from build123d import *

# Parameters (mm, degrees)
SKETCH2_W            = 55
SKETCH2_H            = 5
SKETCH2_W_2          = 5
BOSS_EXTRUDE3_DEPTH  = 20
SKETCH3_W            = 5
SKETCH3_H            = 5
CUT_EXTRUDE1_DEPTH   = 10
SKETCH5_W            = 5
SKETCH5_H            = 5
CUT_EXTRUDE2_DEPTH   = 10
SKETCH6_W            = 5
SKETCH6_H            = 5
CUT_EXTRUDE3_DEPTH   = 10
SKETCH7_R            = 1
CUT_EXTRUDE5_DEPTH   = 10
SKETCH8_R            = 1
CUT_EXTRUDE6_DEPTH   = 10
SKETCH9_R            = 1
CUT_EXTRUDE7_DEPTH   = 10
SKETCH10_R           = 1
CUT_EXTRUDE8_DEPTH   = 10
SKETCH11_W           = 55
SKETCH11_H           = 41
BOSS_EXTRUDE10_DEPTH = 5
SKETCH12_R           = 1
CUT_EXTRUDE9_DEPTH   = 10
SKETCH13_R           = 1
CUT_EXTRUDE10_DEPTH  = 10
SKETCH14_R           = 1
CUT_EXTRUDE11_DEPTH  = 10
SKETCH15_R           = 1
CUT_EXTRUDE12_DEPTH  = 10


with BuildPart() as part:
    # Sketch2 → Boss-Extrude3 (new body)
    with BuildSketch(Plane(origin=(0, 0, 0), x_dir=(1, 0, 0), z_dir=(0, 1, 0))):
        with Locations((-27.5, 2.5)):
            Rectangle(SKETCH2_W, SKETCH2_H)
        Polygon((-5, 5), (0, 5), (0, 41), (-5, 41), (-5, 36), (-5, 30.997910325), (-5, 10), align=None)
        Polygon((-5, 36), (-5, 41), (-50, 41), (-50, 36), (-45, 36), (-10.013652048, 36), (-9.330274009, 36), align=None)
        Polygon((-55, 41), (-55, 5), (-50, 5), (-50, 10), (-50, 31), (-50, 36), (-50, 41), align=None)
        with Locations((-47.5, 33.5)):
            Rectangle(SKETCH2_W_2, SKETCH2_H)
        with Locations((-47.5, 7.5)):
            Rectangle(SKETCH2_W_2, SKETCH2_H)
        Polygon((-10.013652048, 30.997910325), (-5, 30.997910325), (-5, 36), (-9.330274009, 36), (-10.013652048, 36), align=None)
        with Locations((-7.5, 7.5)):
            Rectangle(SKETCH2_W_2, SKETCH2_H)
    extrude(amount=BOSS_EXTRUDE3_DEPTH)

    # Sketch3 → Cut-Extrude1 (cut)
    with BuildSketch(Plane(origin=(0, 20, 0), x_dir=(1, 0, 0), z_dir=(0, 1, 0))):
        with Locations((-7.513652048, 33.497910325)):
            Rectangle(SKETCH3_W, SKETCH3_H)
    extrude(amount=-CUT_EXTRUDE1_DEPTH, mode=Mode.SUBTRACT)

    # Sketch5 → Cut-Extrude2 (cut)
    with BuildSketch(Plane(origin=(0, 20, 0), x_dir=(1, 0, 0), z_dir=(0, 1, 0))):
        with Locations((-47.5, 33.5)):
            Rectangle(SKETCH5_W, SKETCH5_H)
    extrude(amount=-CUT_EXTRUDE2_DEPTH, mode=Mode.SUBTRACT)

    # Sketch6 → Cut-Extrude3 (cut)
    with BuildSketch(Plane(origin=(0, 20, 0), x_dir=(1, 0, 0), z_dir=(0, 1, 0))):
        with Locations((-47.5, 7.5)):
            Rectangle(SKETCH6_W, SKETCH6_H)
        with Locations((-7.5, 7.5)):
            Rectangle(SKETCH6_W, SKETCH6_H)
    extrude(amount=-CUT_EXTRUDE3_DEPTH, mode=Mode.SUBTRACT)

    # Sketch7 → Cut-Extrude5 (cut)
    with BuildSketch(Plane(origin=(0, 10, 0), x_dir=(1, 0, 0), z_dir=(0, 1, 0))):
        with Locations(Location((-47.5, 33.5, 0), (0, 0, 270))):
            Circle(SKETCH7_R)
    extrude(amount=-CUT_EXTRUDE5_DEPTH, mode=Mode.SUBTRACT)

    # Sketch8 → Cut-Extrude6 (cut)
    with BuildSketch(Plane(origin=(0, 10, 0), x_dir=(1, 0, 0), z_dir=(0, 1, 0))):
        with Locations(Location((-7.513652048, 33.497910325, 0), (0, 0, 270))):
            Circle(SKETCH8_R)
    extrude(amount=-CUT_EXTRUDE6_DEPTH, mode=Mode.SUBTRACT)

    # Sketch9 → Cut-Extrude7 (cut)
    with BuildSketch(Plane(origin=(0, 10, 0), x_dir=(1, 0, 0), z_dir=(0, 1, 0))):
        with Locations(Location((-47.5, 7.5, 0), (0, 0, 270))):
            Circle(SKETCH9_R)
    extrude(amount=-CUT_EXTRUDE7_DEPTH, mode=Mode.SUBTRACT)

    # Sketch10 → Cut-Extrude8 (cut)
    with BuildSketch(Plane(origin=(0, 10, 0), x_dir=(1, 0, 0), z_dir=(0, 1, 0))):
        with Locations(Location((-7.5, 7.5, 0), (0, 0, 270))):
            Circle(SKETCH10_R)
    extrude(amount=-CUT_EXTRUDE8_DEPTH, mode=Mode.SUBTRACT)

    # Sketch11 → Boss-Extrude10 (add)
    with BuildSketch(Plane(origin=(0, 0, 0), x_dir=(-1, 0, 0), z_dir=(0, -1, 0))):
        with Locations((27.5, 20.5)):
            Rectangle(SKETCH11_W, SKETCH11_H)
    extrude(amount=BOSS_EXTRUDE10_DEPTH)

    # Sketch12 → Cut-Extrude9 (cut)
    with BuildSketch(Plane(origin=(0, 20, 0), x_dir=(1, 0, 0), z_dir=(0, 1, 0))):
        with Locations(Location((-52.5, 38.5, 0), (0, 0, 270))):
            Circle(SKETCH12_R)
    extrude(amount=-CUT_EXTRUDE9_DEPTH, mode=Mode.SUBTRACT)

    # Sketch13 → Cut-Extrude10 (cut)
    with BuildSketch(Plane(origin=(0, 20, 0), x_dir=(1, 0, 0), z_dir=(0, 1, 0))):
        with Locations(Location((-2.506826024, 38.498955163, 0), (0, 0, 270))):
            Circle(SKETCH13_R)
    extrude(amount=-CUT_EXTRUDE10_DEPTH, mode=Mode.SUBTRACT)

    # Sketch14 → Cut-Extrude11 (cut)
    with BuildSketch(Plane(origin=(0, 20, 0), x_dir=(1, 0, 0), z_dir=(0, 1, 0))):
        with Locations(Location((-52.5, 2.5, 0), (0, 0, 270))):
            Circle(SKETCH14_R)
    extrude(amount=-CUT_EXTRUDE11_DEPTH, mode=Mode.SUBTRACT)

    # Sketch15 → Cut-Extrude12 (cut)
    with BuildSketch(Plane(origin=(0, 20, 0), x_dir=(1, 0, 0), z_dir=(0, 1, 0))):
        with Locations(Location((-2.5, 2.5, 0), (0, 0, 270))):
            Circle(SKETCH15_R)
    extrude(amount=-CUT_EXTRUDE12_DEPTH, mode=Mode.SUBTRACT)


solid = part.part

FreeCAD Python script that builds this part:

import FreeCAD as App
import Part
import Sketcher

V = App.Vector

doc = App.newDocument("Part")
params = doc.addObject("Spreadsheet::Sheet", "Params")
for row, (alias, value) in enumerate([
    ("sketch1_width", "55 mm"),
    ("sketch1_width2", "5 mm"),
    ("sketch1_width3", "35 mm"),
    ("sketch1_height", "41 mm"),
    ("sketch1_height2", "21 mm"),
    ("pad1_length", "20 mm"),
    ("sketch2_width", "5 mm"),
    ("pocket1_length", "10 mm"),
    ("sketch3_width", "5 mm"),
    ("pocket2_length", "10 mm"),
    ("sketch4_width", "5 mm"),
    ("pocket3_length", "10 mm"),
    ("sketch5_diameter", "2 mm"),
    ("pocket4_length", "10 mm"),
    ("sketch6_diameter", "2 mm"),
    ("pocket5_length", "10 mm"),
    ("sketch7_diameter", "2 mm"),
    ("pocket6_length", "10 mm"),
    ("sketch8_diameter", "2 mm"),
    ("pocket7_length", "10 mm"),
    ("sketch9_width", "55 mm"),
    ("sketch9_height", "41 mm"),
    ("pad2_length", "5 mm"),
    ("sketch10_diameter", "2 mm"),
    ("pocket8_length", "10 mm"),
    ("sketch11_diameter", "2 mm"),
    ("pocket9_length", "10 mm"),
    ("sketch12_diameter", "2 mm"),
    ("pocket10_length", "10 mm"),
    ("sketch13_diameter", "2 mm"),
    ("pocket11_length", "10 mm"),
], start=1):
    params.set(f"A{row}", alias)
    params.set(f"B{row}", "=" + value)
    params.setAlias(f"B{row}", alias)

body = doc.addObject("PartDesign::Body", "Body")

sketch1 = doc.addObject("Sketcher::SketchObject", "Sketch")
body.addObject(sketch1)
sketch1.AttachmentSupport = (doc.XZ_Plane, [""])
sketch1.MapMode = "FlatFace"
sketch1.addGeometry([
    Part.LineSegment(V(-55, 0, 0), V(0, 0, 0)),
    Part.LineSegment(V(0, 0, 0), V(0, -41, 0)),
    Part.LineSegment(V(0, -41, 0), V(-55, -41, 0)),
    Part.LineSegment(V(-55, -41, 0), V(-55, 0, 0)),
    Part.LineSegment(V(-45, -36, 0), V(-10, -36, 0)),
    Part.LineSegment(V(-10, -36, 0), V(-10, -31, 0)),
    Part.LineSegment(V(-10, -31, 0), V(-5, -31, 0)),
    Part.LineSegment(V(-5, -31, 0), V(-5, -10, 0)),
    Part.LineSegment(V(-5, -10, 0), V(-10, -10, 0)),
    Part.LineSegment(V(-10, -10, 0), V(-10, -5, 0)),
    Part.LineSegment(V(-10, -5, 0), V(-45, -5, 0)),
    Part.LineSegment(V(-45, -5, 0), V(-45, -10, 0)),
    Part.LineSegment(V(-45, -10, 0), V(-50, -10, 0)),
    Part.LineSegment(V(-50, -10, 0), V(-50, -31, 0)),
    Part.LineSegment(V(-50, -31, 0), V(-45, -31, 0)),
    Part.LineSegment(V(-45, -31, 0), V(-45, -36, 0)),
], False)
sketch1.addConstraint([
    Sketcher.Constraint("Coincident", 0, 2, 1, 1),
    Sketcher.Constraint("Coincident", 1, 2, 2, 1),
    Sketcher.Constraint("Coincident", 2, 2, 3, 1),
    Sketcher.Constraint("Coincident", 3, 2, 0, 1),
    Sketcher.Constraint("Coincident", 4, 2, 5, 1),
    Sketcher.Constraint("Coincident", 5, 2, 6, 1),
    Sketcher.Constraint("Coincident", 6, 2, 7, 1),
    Sketcher.Constraint("Coincident", 7, 2, 8, 1),
    Sketcher.Constraint("Coincident", 8, 2, 9, 1),
    Sketcher.Constraint("Coincident", 9, 2, 10, 1),
    Sketcher.Constraint("Coincident", 10, 2, 11, 1),
    Sketcher.Constraint("Coincident", 11, 2, 12, 1),
    Sketcher.Constraint("Coincident", 12, 2, 13, 1),
    Sketcher.Constraint("Coincident", 13, 2, 14, 1),
    Sketcher.Constraint("Coincident", 14, 2, 15, 1),
    Sketcher.Constraint("Coincident", 15, 2, 4, 1),
    Sketcher.Constraint("Horizontal", 0),
    Sketcher.Constraint("Vertical", 1),
    Sketcher.Constraint("Horizontal", 2),
    Sketcher.Constraint("Vertical", 3),
    Sketcher.Constraint("Horizontal", 4),
    Sketcher.Constraint("Vertical", 5),
    Sketcher.Constraint("Horizontal", 6),
    Sketcher.Constraint("Vertical", 7),
    Sketcher.Constraint("Horizontal", 8),
    Sketcher.Constraint("Vertical", 9),
    Sketcher.Constraint("Horizontal", 10),
    Sketcher.Constraint("Vertical", 11),
    Sketcher.Constraint("Horizontal", 12),
    Sketcher.Constraint("Vertical", 13),
    Sketcher.Constraint("Horizontal", 14),
    Sketcher.Constraint("Vertical", 15),
    Sketcher.Constraint("Coincident", 0, 2, -1, 1),
    Sketcher.Constraint("Horizontal", 8, 2, 11, 2),
    Sketcher.Constraint("Vertical", 11, 2, 14, 2),
    Sketcher.Constraint("Equal", 8, 12),
    Sketcher.Constraint("Equal", 14, 9),
    Sketcher.Constraint("Equal", 11, 15),
    Sketcher.Constraint("DistanceX", 0, 1, 0, 2, 55.0),
    Sketcher.Constraint("DistanceX", 8, 2, 8, 1, 5.0),
    Sketcher.Constraint("DistanceX", 10, 2, 10, 1, 35.0),
    Sketcher.Constraint("DistanceY", 1, 2, 1, 1, 41.0),
    Sketcher.Constraint("DistanceY", 13, 2, 13, 1, 21.0),
    Sketcher.Constraint("DistanceY", 4, 2, -1, 1, 36.0),
    Sketcher.Constraint("DistanceX", 6, 2, -1, 1, 5.0),
    Sketcher.Constraint("DistanceY", 5, 1, 5, 2, 5.00209),
    Sketcher.Constraint("DistanceX", 4, 1, 4, 2, 34.986348),
])
sketch1.setExpression("Constraints[38]", "Params.sketch1_width")
sketch1.setExpression("Constraints[39]", "Params.sketch1_width2")
sketch1.setExpression("Constraints[40]", "Params.sketch1_width3")
sketch1.setExpression("Constraints[41]", "Params.sketch1_height")
sketch1.setExpression("Constraints[42]", "Params.sketch1_height2")
pad1 = doc.addObject("PartDesign::Pad", "Pad")
body.addObject(pad1)
pad1.Profile = sketch1
pad1.setExpression("Length", "Params.pad1_length")
pad1.Reversed = True

sketch2 = doc.addObject("Sketcher::SketchObject", "Sketch001")
body.addObject(sketch2)
sketch2.AttachmentSupport = (doc.XZ_Plane, [""])
sketch2.MapMode = "FlatFace"
sketch2.AttachmentOffset = App.Placement(V(0, 0, -20), App.Rotation())
sketch2.addGeometry([
    Part.LineSegment(V(-10, -36, 0), V(-10, -31, 0)),
    Part.LineSegment(V(-10, -31, 0), V(-5, -31, 0)),
    Part.LineSegment(V(-5, -31, 0), V(-5, -36, 0)),
    Part.LineSegment(V(-5, -36, 0), V(-10, -36, 0)),
], False)
sketch2.addConstraint([
    Sketcher.Constraint("Coincident", 0, 2, 1, 1),
    Sketcher.Constraint("Coincident", 1, 2, 2, 1),
    Sketcher.Constraint("Coincident", 2, 2, 3, 1),
    Sketcher.Constraint("Coincident", 3, 2, 0, 1),
    Sketcher.Constraint("Vertical", 0),
    Sketcher.Constraint("Horizontal", 1),
    Sketcher.Constraint("Vertical", 2),
    Sketcher.Constraint("Horizontal", 3),
    Sketcher.Constraint("Equal", 3, 0),
    Sketcher.Constraint("DistanceX", 1, 1, 1, 2, 5.0),
    Sketcher.Constraint("DistanceY", 0, 2, -1, 1, 30.99791),
    Sketcher.Constraint("DistanceX", 0, 2, -1, 1, 10.013652),
])
sketch2.setExpression("Constraints[9]", "Params.sketch2_width")
pocket1 = doc.addObject("PartDesign::Pocket", "Pocket")
body.addObject(pocket1)
pocket1.Profile = sketch2
pocket1.setExpression("Length", "Params.pocket1_length")
pocket1.Reversed = True

sketch3 = doc.addObject("Sketcher::SketchObject", "Sketch002")
body.addObject(sketch3)
sketch3.AttachmentSupport = (doc.XZ_Plane, [""])
sketch3.MapMode = "FlatFace"
sketch3.AttachmentOffset = App.Placement(V(0, 0, -20), App.Rotation())
sketch3.addGeometry([
    Part.LineSegment(V(-50, -36, 0), V(-50, -31, 0)),
    Part.LineSegment(V(-50, -31, 0), V(-45, -31, 0)),
    Part.LineSegment(V(-45, -31, 0), V(-45, -36, 0)),
    Part.LineSegment(V(-45, -36, 0), V(-50, -36, 0)),
], False)
sketch3.addConstraint([
    Sketcher.Constraint("Coincident", 0, 2, 1, 1),
    Sketcher.Constraint("Coincident", 1, 2, 2, 1),
    Sketcher.Constraint("Coincident", 2, 2, 3, 1),
    Sketcher.Constraint("Coincident", 3, 2, 0, 1),
    Sketcher.Constraint("Vertical", 0),
    Sketcher.Constraint("Horizontal", 1),
    Sketcher.Constraint("Vertical", 2),
    Sketcher.Constraint("Horizontal", 3),
    Sketcher.Constraint("Equal", 3, 0),
    Sketcher.Constraint("DistanceX", 1, 1, 1, 2, 5.0),
    Sketcher.Constraint("DistanceX", 0, 2, -1, 1, 50.0),
    Sketcher.Constraint("DistanceY", 0, 2, -1, 1, 31.0),
])
sketch3.setExpression("Constraints[9]", "Params.sketch3_width")
pocket2 = doc.addObject("PartDesign::Pocket", "Pocket001")
body.addObject(pocket2)
pocket2.Profile = sketch3
pocket2.setExpression("Length", "Params.pocket2_length")
pocket2.Reversed = True

sketch4 = doc.addObject("Sketcher::SketchObject", "Sketch003")
body.addObject(sketch4)
sketch4.AttachmentSupport = (doc.XZ_Plane, [""])
sketch4.MapMode = "FlatFace"
sketch4.AttachmentOffset = App.Placement(V(0, 0, -20), App.Rotation())
sketch4.addGeometry([
    Part.LineSegment(V(-50, -10, 0), V(-50, -5, 0)),
    Part.LineSegment(V(-50, -5, 0), V(-45, -5, 0)),
    Part.LineSegment(V(-45, -5, 0), V(-45, -10, 0)),
    Part.LineSegment(V(-45, -10, 0), V(-50, -10, 0)),
    Part.LineSegment(V(-10, -10, 0), V(-10, -5, 0)),
    Part.LineSegment(V(-10, -5, 0), V(-5, -5, 0)),
    Part.LineSegment(V(-5, -5, 0), V(-5, -10, 0)),
    Part.LineSegment(V(-5, -10, 0), V(-10, -10, 0)),
], False)
sketch4.addConstraint([
    Sketcher.Constraint("Coincident", 0, 2, 1, 1),
    Sketcher.Constraint("Coincident", 1, 2, 2, 1),
    Sketcher.Constraint("Coincident", 2, 2, 3, 1),
    Sketcher.Constraint("Coincident", 3, 2, 0, 1),
    Sketcher.Constraint("Coincident", 4, 2, 5, 1),
    Sketcher.Constraint("Coincident", 5, 2, 6, 1),
    Sketcher.Constraint("Coincident", 6, 2, 7, 1),
    Sketcher.Constraint("Coincident", 7, 2, 4, 1),
    Sketcher.Constraint("Vertical", 0),
    Sketcher.Constraint("Horizontal", 1),
    Sketcher.Constraint("Vertical", 2),
    Sketcher.Constraint("Horizontal", 3),
    Sketcher.Constraint("Vertical", 4),
    Sketcher.Constraint("Horizontal", 5),
    Sketcher.Constraint("Vertical", 6),
    Sketcher.Constraint("Horizontal", 7),
    Sketcher.Constraint("Horizontal", 1, 2, 4, 2),
    Sketcher.Constraint("Horizontal", 3, 2, 6, 2),
    Sketcher.Constraint("Equal", 3, 5),
    Sketcher.Constraint("Equal", 7, 0),
    Sketcher.Constraint("DistanceX", 1, 1, 1, 2, 5.0),
    Sketcher.Constraint("DistanceX", 0, 2, -1, 1, 50.0),
    Sketcher.Constraint("DistanceY", 0, 2, -1, 1, 5.0),
    Sketcher.Constraint("DistanceX", 4, 2, -1, 1, 10.0),
])
sketch4.setExpression("Constraints[20]", "Params.sketch4_width")
pocket3 = doc.addObject("PartDesign::Pocket", "Pocket002")
body.addObject(pocket3)
pocket3.Profile = sketch4
pocket3.setExpression("Length", "Params.pocket3_length")
pocket3.Reversed = True

sketch5 = doc.addObject("Sketcher::SketchObject", "Sketch004")
body.addObject(sketch5)
sketch5.AttachmentSupport = (doc.XZ_Plane, [""])
sketch5.MapMode = "FlatFace"
sketch5.AttachmentOffset = App.Placement(V(0, 0, -10), App.Rotation())
sketch5.addGeometry(Part.Circle(V(-47.5, -33.5, 0), V(0, 0, 1), 1), False)
sketch5.addConstraint([
    Sketcher.Constraint("Diameter", 0, 2.0),
    Sketcher.Constraint("DistanceX", 0, 3, -1, 1, 47.5),
    Sketcher.Constraint("DistanceY", 0, 3, -1, 1, 33.5),
])
sketch5.setExpression("Constraints[0]", "Params.sketch5_diameter")
pocket4 = doc.addObject("PartDesign::Pocket", "Pocket003")
body.addObject(pocket4)
pocket4.Profile = sketch5
pocket4.setExpression("Length", "Params.pocket4_length")
pocket4.Reversed = True

sketch6 = doc.addObject("Sketcher::SketchObject", "Sketch005")
body.addObject(sketch6)
sketch6.AttachmentSupport = (doc.XZ_Plane, [""])
sketch6.MapMode = "FlatFace"
sketch6.AttachmentOffset = App.Placement(V(0, 0, -10), App.Rotation())
sketch6.addGeometry(Part.Circle(V(-7.5, -33.5, 0), V(0, 0, 1), 1), False)
sketch6.addConstraint([
    Sketcher.Constraint("Diameter", 0, 2.0),
    Sketcher.Constraint("DistanceY", 0, 3, -1, 1, 33.49791),
    Sketcher.Constraint("DistanceX", 0, 3, -1, 1, 7.513652),
])
sketch6.setExpression("Constraints[0]", "Params.sketch6_diameter")
pocket5 = doc.addObject("PartDesign::Pocket", "Pocket004")
body.addObject(pocket5)
pocket5.Profile = sketch6
pocket5.setExpression("Length", "Params.pocket5_length")
pocket5.Reversed = True

sketch7 = doc.addObject("Sketcher::SketchObject", "Sketch006")
body.addObject(sketch7)
sketch7.AttachmentSupport = (doc.XZ_Plane, [""])
sketch7.MapMode = "FlatFace"
sketch7.AttachmentOffset = App.Placement(V(0, 0, -10), App.Rotation())
sketch7.addGeometry(Part.Circle(V(-47.5, -7.5, 0), V(0, 0, 1), 1), False)
sketch7.addConstraint([
    Sketcher.Constraint("Diameter", 0, 2.0),
    Sketcher.Constraint("DistanceX", 0, 3, -1, 1, 47.5),
    Sketcher.Constraint("DistanceY", 0, 3, -1, 1, 7.5),
])
sketch7.setExpression("Constraints[0]", "Params.sketch7_diameter")
pocket6 = doc.addObject("PartDesign::Pocket", "Pocket005")
body.addObject(pocket6)
pocket6.Profile = sketch7
pocket6.setExpression("Length", "Params.pocket6_length")
pocket6.Reversed = True

sketch8 = doc.addObject("Sketcher::SketchObject", "Sketch007")
body.addObject(sketch8)
sketch8.AttachmentSupport = (doc.XZ_Plane, [""])
sketch8.MapMode = "FlatFace"
sketch8.AttachmentOffset = App.Placement(V(0, 0, -10), App.Rotation())
sketch8.addGeometry(Part.Circle(V(-7.5, -7.5, 0), V(0, 0, 1), 1), False)
sketch8.addConstraint([
    Sketcher.Constraint("Diameter", 0, 2.0),
    Sketcher.Constraint("DistanceX", 0, 3, -1, 1, 7.5),
    Sketcher.Constraint("DistanceY", 0, 3, -1, 1, 7.5),
])
sketch8.setExpression("Constraints[0]", "Params.sketch8_diameter")
pocket7 = doc.addObject("PartDesign::Pocket", "Pocket006")
body.addObject(pocket7)
pocket7.Profile = sketch8
pocket7.setExpression("Length", "Params.pocket7_length")
pocket7.Reversed = True

sketch9 = doc.addObject("Sketcher::SketchObject", "Sketch008")
body.addObject(sketch9)
sketch9.AttachmentSupport = (doc.XZ_Plane, [""])
sketch9.MapMode = "FlatFace"
sketch9.addGeometry([
    Part.LineSegment(V(0, -41, 0), V(0, 0, 0)),
    Part.LineSegment(V(0, 0, 0), V(-55, 0, 0)),
    Part.LineSegment(V(-55, 0, 0), V(-55, -41, 0)),
    Part.LineSegment(V(-55, -41, 0), V(0, -41, 0)),
], False)
sketch9.addConstraint([
    Sketcher.Constraint("Coincident", 0, 2, 1, 1),
    Sketcher.Constraint("Coincident", 1, 2, 2, 1),
    Sketcher.Constraint("Coincident", 2, 2, 3, 1),
    Sketcher.Constraint("Coincident", 3, 2, 0, 1),
    Sketcher.Constraint("Vertical", 0),
    Sketcher.Constraint("Horizontal", 1),
    Sketcher.Constraint("Vertical", 2),
    Sketcher.Constraint("Horizontal", 3),
    Sketcher.Constraint("Coincident", 0, 2, -1, 1),
    Sketcher.Constraint("DistanceX", 1, 2, 1, 1, 55.0),
    Sketcher.Constraint("DistanceY", 0, 1, 0, 2, 41.0),
])
sketch9.setExpression("Constraints[9]", "Params.sketch9_width")
sketch9.setExpression("Constraints[10]", "Params.sketch9_height")
pad2 = doc.addObject("PartDesign::Pad", "Pad001")
body.addObject(pad2)
pad2.Profile = sketch9
pad2.setExpression("Length", "Params.pad2_length")

sketch10 = doc.addObject("Sketcher::SketchObject", "Sketch009")
body.addObject(sketch10)
sketch10.AttachmentSupport = (doc.XZ_Plane, [""])
sketch10.MapMode = "FlatFace"
sketch10.AttachmentOffset = App.Placement(V(0, 0, -20), App.Rotation())
sketch10.addGeometry(Part.Circle(V(-52.5, -38.5, 0), V(0, 0, 1), 1), False)
sketch10.addConstraint([
    Sketcher.Constraint("Diameter", 0, 2.0),
    Sketcher.Constraint("DistanceX", 0, 3, -1, 1, 52.5),
    Sketcher.Constraint("DistanceY", 0, 3, -1, 1, 38.5),
])
sketch10.setExpression("Constraints[0]", "Params.sketch10_diameter")
pocket8 = doc.addObject("PartDesign::Pocket", "Pocket007")
body.addObject(pocket8)
pocket8.Profile = sketch10
pocket8.setExpression("Length", "Params.pocket8_length")
pocket8.Reversed = True

sketch11 = doc.addObject("Sketcher::SketchObject", "Sketch010")
body.addObject(sketch11)
sketch11.AttachmentSupport = (doc.XZ_Plane, [""])
sketch11.MapMode = "FlatFace"
sketch11.AttachmentOffset = App.Placement(V(0, 0, -20), App.Rotation())
sketch11.addGeometry(Part.Circle(V(-2.5, -38.5, 0), V(0, 0, 1), 1), False)
sketch11.addConstraint([
    Sketcher.Constraint("Diameter", 0, 2.0),
    Sketcher.Constraint("DistanceX", 0, 3, -1, 1, 2.506826),
    Sketcher.Constraint("DistanceY", 0, 3, -1, 1, 38.498955),
])
sketch11.setExpression("Constraints[0]", "Params.sketch11_diameter")
pocket9 = doc.addObject("PartDesign::Pocket", "Pocket008")
body.addObject(pocket9)
pocket9.Profile = sketch11
pocket9.setExpression("Length", "Params.pocket9_length")
pocket9.Reversed = True

sketch12 = doc.addObject("Sketcher::SketchObject", "Sketch011")
body.addObject(sketch12)
sketch12.AttachmentSupport = (doc.XZ_Plane, [""])
sketch12.MapMode = "FlatFace"
sketch12.AttachmentOffset = App.Placement(V(0, 0, -20), App.Rotation())
sketch12.addGeometry(Part.Circle(V(-52.5, -2.5, 0), V(0, 0, 1), 1), False)
sketch12.addConstraint([
    Sketcher.Constraint("Diameter", 0, 2.0),
    Sketcher.Constraint("DistanceX", 0, 3, -1, 1, 52.5),
    Sketcher.Constraint("DistanceY", 0, 3, -1, 1, 2.5),
])
sketch12.setExpression("Constraints[0]", "Params.sketch12_diameter")
pocket10 = doc.addObject("PartDesign::Pocket", "Pocket009")
body.addObject(pocket10)
pocket10.Profile = sketch12
pocket10.setExpression("Length", "Params.pocket10_length")
pocket10.Reversed = True

sketch13 = doc.addObject("Sketcher::SketchObject", "Sketch012")
body.addObject(sketch13)
sketch13.AttachmentSupport = (doc.XZ_Plane, [""])
sketch13.MapMode = "FlatFace"
sketch13.AttachmentOffset = App.Placement(V(0, 0, -20), App.Rotation())
sketch13.addGeometry(Part.Circle(V(-2.5, -2.5, 0), V(0, 0, 1), 1), False)
sketch13.addConstraint([
    Sketcher.Constraint("Diameter", 0, 2.0),
    Sketcher.Constraint("DistanceX", 0, 3, -1, 1, 2.5),
    Sketcher.Constraint("DistanceY", 0, 3, -1, 1, 2.5),
])
sketch13.setExpression("Constraints[0]", "Params.sketch13_diameter")
pocket11 = doc.addObject("PartDesign::Pocket", "Pocket010")
body.addObject(pocket11)
pocket11.Profile = sketch13
pocket11.setExpression("Length", "Params.pocket11_length")
pocket11.Reversed = True

doc.recompute()
